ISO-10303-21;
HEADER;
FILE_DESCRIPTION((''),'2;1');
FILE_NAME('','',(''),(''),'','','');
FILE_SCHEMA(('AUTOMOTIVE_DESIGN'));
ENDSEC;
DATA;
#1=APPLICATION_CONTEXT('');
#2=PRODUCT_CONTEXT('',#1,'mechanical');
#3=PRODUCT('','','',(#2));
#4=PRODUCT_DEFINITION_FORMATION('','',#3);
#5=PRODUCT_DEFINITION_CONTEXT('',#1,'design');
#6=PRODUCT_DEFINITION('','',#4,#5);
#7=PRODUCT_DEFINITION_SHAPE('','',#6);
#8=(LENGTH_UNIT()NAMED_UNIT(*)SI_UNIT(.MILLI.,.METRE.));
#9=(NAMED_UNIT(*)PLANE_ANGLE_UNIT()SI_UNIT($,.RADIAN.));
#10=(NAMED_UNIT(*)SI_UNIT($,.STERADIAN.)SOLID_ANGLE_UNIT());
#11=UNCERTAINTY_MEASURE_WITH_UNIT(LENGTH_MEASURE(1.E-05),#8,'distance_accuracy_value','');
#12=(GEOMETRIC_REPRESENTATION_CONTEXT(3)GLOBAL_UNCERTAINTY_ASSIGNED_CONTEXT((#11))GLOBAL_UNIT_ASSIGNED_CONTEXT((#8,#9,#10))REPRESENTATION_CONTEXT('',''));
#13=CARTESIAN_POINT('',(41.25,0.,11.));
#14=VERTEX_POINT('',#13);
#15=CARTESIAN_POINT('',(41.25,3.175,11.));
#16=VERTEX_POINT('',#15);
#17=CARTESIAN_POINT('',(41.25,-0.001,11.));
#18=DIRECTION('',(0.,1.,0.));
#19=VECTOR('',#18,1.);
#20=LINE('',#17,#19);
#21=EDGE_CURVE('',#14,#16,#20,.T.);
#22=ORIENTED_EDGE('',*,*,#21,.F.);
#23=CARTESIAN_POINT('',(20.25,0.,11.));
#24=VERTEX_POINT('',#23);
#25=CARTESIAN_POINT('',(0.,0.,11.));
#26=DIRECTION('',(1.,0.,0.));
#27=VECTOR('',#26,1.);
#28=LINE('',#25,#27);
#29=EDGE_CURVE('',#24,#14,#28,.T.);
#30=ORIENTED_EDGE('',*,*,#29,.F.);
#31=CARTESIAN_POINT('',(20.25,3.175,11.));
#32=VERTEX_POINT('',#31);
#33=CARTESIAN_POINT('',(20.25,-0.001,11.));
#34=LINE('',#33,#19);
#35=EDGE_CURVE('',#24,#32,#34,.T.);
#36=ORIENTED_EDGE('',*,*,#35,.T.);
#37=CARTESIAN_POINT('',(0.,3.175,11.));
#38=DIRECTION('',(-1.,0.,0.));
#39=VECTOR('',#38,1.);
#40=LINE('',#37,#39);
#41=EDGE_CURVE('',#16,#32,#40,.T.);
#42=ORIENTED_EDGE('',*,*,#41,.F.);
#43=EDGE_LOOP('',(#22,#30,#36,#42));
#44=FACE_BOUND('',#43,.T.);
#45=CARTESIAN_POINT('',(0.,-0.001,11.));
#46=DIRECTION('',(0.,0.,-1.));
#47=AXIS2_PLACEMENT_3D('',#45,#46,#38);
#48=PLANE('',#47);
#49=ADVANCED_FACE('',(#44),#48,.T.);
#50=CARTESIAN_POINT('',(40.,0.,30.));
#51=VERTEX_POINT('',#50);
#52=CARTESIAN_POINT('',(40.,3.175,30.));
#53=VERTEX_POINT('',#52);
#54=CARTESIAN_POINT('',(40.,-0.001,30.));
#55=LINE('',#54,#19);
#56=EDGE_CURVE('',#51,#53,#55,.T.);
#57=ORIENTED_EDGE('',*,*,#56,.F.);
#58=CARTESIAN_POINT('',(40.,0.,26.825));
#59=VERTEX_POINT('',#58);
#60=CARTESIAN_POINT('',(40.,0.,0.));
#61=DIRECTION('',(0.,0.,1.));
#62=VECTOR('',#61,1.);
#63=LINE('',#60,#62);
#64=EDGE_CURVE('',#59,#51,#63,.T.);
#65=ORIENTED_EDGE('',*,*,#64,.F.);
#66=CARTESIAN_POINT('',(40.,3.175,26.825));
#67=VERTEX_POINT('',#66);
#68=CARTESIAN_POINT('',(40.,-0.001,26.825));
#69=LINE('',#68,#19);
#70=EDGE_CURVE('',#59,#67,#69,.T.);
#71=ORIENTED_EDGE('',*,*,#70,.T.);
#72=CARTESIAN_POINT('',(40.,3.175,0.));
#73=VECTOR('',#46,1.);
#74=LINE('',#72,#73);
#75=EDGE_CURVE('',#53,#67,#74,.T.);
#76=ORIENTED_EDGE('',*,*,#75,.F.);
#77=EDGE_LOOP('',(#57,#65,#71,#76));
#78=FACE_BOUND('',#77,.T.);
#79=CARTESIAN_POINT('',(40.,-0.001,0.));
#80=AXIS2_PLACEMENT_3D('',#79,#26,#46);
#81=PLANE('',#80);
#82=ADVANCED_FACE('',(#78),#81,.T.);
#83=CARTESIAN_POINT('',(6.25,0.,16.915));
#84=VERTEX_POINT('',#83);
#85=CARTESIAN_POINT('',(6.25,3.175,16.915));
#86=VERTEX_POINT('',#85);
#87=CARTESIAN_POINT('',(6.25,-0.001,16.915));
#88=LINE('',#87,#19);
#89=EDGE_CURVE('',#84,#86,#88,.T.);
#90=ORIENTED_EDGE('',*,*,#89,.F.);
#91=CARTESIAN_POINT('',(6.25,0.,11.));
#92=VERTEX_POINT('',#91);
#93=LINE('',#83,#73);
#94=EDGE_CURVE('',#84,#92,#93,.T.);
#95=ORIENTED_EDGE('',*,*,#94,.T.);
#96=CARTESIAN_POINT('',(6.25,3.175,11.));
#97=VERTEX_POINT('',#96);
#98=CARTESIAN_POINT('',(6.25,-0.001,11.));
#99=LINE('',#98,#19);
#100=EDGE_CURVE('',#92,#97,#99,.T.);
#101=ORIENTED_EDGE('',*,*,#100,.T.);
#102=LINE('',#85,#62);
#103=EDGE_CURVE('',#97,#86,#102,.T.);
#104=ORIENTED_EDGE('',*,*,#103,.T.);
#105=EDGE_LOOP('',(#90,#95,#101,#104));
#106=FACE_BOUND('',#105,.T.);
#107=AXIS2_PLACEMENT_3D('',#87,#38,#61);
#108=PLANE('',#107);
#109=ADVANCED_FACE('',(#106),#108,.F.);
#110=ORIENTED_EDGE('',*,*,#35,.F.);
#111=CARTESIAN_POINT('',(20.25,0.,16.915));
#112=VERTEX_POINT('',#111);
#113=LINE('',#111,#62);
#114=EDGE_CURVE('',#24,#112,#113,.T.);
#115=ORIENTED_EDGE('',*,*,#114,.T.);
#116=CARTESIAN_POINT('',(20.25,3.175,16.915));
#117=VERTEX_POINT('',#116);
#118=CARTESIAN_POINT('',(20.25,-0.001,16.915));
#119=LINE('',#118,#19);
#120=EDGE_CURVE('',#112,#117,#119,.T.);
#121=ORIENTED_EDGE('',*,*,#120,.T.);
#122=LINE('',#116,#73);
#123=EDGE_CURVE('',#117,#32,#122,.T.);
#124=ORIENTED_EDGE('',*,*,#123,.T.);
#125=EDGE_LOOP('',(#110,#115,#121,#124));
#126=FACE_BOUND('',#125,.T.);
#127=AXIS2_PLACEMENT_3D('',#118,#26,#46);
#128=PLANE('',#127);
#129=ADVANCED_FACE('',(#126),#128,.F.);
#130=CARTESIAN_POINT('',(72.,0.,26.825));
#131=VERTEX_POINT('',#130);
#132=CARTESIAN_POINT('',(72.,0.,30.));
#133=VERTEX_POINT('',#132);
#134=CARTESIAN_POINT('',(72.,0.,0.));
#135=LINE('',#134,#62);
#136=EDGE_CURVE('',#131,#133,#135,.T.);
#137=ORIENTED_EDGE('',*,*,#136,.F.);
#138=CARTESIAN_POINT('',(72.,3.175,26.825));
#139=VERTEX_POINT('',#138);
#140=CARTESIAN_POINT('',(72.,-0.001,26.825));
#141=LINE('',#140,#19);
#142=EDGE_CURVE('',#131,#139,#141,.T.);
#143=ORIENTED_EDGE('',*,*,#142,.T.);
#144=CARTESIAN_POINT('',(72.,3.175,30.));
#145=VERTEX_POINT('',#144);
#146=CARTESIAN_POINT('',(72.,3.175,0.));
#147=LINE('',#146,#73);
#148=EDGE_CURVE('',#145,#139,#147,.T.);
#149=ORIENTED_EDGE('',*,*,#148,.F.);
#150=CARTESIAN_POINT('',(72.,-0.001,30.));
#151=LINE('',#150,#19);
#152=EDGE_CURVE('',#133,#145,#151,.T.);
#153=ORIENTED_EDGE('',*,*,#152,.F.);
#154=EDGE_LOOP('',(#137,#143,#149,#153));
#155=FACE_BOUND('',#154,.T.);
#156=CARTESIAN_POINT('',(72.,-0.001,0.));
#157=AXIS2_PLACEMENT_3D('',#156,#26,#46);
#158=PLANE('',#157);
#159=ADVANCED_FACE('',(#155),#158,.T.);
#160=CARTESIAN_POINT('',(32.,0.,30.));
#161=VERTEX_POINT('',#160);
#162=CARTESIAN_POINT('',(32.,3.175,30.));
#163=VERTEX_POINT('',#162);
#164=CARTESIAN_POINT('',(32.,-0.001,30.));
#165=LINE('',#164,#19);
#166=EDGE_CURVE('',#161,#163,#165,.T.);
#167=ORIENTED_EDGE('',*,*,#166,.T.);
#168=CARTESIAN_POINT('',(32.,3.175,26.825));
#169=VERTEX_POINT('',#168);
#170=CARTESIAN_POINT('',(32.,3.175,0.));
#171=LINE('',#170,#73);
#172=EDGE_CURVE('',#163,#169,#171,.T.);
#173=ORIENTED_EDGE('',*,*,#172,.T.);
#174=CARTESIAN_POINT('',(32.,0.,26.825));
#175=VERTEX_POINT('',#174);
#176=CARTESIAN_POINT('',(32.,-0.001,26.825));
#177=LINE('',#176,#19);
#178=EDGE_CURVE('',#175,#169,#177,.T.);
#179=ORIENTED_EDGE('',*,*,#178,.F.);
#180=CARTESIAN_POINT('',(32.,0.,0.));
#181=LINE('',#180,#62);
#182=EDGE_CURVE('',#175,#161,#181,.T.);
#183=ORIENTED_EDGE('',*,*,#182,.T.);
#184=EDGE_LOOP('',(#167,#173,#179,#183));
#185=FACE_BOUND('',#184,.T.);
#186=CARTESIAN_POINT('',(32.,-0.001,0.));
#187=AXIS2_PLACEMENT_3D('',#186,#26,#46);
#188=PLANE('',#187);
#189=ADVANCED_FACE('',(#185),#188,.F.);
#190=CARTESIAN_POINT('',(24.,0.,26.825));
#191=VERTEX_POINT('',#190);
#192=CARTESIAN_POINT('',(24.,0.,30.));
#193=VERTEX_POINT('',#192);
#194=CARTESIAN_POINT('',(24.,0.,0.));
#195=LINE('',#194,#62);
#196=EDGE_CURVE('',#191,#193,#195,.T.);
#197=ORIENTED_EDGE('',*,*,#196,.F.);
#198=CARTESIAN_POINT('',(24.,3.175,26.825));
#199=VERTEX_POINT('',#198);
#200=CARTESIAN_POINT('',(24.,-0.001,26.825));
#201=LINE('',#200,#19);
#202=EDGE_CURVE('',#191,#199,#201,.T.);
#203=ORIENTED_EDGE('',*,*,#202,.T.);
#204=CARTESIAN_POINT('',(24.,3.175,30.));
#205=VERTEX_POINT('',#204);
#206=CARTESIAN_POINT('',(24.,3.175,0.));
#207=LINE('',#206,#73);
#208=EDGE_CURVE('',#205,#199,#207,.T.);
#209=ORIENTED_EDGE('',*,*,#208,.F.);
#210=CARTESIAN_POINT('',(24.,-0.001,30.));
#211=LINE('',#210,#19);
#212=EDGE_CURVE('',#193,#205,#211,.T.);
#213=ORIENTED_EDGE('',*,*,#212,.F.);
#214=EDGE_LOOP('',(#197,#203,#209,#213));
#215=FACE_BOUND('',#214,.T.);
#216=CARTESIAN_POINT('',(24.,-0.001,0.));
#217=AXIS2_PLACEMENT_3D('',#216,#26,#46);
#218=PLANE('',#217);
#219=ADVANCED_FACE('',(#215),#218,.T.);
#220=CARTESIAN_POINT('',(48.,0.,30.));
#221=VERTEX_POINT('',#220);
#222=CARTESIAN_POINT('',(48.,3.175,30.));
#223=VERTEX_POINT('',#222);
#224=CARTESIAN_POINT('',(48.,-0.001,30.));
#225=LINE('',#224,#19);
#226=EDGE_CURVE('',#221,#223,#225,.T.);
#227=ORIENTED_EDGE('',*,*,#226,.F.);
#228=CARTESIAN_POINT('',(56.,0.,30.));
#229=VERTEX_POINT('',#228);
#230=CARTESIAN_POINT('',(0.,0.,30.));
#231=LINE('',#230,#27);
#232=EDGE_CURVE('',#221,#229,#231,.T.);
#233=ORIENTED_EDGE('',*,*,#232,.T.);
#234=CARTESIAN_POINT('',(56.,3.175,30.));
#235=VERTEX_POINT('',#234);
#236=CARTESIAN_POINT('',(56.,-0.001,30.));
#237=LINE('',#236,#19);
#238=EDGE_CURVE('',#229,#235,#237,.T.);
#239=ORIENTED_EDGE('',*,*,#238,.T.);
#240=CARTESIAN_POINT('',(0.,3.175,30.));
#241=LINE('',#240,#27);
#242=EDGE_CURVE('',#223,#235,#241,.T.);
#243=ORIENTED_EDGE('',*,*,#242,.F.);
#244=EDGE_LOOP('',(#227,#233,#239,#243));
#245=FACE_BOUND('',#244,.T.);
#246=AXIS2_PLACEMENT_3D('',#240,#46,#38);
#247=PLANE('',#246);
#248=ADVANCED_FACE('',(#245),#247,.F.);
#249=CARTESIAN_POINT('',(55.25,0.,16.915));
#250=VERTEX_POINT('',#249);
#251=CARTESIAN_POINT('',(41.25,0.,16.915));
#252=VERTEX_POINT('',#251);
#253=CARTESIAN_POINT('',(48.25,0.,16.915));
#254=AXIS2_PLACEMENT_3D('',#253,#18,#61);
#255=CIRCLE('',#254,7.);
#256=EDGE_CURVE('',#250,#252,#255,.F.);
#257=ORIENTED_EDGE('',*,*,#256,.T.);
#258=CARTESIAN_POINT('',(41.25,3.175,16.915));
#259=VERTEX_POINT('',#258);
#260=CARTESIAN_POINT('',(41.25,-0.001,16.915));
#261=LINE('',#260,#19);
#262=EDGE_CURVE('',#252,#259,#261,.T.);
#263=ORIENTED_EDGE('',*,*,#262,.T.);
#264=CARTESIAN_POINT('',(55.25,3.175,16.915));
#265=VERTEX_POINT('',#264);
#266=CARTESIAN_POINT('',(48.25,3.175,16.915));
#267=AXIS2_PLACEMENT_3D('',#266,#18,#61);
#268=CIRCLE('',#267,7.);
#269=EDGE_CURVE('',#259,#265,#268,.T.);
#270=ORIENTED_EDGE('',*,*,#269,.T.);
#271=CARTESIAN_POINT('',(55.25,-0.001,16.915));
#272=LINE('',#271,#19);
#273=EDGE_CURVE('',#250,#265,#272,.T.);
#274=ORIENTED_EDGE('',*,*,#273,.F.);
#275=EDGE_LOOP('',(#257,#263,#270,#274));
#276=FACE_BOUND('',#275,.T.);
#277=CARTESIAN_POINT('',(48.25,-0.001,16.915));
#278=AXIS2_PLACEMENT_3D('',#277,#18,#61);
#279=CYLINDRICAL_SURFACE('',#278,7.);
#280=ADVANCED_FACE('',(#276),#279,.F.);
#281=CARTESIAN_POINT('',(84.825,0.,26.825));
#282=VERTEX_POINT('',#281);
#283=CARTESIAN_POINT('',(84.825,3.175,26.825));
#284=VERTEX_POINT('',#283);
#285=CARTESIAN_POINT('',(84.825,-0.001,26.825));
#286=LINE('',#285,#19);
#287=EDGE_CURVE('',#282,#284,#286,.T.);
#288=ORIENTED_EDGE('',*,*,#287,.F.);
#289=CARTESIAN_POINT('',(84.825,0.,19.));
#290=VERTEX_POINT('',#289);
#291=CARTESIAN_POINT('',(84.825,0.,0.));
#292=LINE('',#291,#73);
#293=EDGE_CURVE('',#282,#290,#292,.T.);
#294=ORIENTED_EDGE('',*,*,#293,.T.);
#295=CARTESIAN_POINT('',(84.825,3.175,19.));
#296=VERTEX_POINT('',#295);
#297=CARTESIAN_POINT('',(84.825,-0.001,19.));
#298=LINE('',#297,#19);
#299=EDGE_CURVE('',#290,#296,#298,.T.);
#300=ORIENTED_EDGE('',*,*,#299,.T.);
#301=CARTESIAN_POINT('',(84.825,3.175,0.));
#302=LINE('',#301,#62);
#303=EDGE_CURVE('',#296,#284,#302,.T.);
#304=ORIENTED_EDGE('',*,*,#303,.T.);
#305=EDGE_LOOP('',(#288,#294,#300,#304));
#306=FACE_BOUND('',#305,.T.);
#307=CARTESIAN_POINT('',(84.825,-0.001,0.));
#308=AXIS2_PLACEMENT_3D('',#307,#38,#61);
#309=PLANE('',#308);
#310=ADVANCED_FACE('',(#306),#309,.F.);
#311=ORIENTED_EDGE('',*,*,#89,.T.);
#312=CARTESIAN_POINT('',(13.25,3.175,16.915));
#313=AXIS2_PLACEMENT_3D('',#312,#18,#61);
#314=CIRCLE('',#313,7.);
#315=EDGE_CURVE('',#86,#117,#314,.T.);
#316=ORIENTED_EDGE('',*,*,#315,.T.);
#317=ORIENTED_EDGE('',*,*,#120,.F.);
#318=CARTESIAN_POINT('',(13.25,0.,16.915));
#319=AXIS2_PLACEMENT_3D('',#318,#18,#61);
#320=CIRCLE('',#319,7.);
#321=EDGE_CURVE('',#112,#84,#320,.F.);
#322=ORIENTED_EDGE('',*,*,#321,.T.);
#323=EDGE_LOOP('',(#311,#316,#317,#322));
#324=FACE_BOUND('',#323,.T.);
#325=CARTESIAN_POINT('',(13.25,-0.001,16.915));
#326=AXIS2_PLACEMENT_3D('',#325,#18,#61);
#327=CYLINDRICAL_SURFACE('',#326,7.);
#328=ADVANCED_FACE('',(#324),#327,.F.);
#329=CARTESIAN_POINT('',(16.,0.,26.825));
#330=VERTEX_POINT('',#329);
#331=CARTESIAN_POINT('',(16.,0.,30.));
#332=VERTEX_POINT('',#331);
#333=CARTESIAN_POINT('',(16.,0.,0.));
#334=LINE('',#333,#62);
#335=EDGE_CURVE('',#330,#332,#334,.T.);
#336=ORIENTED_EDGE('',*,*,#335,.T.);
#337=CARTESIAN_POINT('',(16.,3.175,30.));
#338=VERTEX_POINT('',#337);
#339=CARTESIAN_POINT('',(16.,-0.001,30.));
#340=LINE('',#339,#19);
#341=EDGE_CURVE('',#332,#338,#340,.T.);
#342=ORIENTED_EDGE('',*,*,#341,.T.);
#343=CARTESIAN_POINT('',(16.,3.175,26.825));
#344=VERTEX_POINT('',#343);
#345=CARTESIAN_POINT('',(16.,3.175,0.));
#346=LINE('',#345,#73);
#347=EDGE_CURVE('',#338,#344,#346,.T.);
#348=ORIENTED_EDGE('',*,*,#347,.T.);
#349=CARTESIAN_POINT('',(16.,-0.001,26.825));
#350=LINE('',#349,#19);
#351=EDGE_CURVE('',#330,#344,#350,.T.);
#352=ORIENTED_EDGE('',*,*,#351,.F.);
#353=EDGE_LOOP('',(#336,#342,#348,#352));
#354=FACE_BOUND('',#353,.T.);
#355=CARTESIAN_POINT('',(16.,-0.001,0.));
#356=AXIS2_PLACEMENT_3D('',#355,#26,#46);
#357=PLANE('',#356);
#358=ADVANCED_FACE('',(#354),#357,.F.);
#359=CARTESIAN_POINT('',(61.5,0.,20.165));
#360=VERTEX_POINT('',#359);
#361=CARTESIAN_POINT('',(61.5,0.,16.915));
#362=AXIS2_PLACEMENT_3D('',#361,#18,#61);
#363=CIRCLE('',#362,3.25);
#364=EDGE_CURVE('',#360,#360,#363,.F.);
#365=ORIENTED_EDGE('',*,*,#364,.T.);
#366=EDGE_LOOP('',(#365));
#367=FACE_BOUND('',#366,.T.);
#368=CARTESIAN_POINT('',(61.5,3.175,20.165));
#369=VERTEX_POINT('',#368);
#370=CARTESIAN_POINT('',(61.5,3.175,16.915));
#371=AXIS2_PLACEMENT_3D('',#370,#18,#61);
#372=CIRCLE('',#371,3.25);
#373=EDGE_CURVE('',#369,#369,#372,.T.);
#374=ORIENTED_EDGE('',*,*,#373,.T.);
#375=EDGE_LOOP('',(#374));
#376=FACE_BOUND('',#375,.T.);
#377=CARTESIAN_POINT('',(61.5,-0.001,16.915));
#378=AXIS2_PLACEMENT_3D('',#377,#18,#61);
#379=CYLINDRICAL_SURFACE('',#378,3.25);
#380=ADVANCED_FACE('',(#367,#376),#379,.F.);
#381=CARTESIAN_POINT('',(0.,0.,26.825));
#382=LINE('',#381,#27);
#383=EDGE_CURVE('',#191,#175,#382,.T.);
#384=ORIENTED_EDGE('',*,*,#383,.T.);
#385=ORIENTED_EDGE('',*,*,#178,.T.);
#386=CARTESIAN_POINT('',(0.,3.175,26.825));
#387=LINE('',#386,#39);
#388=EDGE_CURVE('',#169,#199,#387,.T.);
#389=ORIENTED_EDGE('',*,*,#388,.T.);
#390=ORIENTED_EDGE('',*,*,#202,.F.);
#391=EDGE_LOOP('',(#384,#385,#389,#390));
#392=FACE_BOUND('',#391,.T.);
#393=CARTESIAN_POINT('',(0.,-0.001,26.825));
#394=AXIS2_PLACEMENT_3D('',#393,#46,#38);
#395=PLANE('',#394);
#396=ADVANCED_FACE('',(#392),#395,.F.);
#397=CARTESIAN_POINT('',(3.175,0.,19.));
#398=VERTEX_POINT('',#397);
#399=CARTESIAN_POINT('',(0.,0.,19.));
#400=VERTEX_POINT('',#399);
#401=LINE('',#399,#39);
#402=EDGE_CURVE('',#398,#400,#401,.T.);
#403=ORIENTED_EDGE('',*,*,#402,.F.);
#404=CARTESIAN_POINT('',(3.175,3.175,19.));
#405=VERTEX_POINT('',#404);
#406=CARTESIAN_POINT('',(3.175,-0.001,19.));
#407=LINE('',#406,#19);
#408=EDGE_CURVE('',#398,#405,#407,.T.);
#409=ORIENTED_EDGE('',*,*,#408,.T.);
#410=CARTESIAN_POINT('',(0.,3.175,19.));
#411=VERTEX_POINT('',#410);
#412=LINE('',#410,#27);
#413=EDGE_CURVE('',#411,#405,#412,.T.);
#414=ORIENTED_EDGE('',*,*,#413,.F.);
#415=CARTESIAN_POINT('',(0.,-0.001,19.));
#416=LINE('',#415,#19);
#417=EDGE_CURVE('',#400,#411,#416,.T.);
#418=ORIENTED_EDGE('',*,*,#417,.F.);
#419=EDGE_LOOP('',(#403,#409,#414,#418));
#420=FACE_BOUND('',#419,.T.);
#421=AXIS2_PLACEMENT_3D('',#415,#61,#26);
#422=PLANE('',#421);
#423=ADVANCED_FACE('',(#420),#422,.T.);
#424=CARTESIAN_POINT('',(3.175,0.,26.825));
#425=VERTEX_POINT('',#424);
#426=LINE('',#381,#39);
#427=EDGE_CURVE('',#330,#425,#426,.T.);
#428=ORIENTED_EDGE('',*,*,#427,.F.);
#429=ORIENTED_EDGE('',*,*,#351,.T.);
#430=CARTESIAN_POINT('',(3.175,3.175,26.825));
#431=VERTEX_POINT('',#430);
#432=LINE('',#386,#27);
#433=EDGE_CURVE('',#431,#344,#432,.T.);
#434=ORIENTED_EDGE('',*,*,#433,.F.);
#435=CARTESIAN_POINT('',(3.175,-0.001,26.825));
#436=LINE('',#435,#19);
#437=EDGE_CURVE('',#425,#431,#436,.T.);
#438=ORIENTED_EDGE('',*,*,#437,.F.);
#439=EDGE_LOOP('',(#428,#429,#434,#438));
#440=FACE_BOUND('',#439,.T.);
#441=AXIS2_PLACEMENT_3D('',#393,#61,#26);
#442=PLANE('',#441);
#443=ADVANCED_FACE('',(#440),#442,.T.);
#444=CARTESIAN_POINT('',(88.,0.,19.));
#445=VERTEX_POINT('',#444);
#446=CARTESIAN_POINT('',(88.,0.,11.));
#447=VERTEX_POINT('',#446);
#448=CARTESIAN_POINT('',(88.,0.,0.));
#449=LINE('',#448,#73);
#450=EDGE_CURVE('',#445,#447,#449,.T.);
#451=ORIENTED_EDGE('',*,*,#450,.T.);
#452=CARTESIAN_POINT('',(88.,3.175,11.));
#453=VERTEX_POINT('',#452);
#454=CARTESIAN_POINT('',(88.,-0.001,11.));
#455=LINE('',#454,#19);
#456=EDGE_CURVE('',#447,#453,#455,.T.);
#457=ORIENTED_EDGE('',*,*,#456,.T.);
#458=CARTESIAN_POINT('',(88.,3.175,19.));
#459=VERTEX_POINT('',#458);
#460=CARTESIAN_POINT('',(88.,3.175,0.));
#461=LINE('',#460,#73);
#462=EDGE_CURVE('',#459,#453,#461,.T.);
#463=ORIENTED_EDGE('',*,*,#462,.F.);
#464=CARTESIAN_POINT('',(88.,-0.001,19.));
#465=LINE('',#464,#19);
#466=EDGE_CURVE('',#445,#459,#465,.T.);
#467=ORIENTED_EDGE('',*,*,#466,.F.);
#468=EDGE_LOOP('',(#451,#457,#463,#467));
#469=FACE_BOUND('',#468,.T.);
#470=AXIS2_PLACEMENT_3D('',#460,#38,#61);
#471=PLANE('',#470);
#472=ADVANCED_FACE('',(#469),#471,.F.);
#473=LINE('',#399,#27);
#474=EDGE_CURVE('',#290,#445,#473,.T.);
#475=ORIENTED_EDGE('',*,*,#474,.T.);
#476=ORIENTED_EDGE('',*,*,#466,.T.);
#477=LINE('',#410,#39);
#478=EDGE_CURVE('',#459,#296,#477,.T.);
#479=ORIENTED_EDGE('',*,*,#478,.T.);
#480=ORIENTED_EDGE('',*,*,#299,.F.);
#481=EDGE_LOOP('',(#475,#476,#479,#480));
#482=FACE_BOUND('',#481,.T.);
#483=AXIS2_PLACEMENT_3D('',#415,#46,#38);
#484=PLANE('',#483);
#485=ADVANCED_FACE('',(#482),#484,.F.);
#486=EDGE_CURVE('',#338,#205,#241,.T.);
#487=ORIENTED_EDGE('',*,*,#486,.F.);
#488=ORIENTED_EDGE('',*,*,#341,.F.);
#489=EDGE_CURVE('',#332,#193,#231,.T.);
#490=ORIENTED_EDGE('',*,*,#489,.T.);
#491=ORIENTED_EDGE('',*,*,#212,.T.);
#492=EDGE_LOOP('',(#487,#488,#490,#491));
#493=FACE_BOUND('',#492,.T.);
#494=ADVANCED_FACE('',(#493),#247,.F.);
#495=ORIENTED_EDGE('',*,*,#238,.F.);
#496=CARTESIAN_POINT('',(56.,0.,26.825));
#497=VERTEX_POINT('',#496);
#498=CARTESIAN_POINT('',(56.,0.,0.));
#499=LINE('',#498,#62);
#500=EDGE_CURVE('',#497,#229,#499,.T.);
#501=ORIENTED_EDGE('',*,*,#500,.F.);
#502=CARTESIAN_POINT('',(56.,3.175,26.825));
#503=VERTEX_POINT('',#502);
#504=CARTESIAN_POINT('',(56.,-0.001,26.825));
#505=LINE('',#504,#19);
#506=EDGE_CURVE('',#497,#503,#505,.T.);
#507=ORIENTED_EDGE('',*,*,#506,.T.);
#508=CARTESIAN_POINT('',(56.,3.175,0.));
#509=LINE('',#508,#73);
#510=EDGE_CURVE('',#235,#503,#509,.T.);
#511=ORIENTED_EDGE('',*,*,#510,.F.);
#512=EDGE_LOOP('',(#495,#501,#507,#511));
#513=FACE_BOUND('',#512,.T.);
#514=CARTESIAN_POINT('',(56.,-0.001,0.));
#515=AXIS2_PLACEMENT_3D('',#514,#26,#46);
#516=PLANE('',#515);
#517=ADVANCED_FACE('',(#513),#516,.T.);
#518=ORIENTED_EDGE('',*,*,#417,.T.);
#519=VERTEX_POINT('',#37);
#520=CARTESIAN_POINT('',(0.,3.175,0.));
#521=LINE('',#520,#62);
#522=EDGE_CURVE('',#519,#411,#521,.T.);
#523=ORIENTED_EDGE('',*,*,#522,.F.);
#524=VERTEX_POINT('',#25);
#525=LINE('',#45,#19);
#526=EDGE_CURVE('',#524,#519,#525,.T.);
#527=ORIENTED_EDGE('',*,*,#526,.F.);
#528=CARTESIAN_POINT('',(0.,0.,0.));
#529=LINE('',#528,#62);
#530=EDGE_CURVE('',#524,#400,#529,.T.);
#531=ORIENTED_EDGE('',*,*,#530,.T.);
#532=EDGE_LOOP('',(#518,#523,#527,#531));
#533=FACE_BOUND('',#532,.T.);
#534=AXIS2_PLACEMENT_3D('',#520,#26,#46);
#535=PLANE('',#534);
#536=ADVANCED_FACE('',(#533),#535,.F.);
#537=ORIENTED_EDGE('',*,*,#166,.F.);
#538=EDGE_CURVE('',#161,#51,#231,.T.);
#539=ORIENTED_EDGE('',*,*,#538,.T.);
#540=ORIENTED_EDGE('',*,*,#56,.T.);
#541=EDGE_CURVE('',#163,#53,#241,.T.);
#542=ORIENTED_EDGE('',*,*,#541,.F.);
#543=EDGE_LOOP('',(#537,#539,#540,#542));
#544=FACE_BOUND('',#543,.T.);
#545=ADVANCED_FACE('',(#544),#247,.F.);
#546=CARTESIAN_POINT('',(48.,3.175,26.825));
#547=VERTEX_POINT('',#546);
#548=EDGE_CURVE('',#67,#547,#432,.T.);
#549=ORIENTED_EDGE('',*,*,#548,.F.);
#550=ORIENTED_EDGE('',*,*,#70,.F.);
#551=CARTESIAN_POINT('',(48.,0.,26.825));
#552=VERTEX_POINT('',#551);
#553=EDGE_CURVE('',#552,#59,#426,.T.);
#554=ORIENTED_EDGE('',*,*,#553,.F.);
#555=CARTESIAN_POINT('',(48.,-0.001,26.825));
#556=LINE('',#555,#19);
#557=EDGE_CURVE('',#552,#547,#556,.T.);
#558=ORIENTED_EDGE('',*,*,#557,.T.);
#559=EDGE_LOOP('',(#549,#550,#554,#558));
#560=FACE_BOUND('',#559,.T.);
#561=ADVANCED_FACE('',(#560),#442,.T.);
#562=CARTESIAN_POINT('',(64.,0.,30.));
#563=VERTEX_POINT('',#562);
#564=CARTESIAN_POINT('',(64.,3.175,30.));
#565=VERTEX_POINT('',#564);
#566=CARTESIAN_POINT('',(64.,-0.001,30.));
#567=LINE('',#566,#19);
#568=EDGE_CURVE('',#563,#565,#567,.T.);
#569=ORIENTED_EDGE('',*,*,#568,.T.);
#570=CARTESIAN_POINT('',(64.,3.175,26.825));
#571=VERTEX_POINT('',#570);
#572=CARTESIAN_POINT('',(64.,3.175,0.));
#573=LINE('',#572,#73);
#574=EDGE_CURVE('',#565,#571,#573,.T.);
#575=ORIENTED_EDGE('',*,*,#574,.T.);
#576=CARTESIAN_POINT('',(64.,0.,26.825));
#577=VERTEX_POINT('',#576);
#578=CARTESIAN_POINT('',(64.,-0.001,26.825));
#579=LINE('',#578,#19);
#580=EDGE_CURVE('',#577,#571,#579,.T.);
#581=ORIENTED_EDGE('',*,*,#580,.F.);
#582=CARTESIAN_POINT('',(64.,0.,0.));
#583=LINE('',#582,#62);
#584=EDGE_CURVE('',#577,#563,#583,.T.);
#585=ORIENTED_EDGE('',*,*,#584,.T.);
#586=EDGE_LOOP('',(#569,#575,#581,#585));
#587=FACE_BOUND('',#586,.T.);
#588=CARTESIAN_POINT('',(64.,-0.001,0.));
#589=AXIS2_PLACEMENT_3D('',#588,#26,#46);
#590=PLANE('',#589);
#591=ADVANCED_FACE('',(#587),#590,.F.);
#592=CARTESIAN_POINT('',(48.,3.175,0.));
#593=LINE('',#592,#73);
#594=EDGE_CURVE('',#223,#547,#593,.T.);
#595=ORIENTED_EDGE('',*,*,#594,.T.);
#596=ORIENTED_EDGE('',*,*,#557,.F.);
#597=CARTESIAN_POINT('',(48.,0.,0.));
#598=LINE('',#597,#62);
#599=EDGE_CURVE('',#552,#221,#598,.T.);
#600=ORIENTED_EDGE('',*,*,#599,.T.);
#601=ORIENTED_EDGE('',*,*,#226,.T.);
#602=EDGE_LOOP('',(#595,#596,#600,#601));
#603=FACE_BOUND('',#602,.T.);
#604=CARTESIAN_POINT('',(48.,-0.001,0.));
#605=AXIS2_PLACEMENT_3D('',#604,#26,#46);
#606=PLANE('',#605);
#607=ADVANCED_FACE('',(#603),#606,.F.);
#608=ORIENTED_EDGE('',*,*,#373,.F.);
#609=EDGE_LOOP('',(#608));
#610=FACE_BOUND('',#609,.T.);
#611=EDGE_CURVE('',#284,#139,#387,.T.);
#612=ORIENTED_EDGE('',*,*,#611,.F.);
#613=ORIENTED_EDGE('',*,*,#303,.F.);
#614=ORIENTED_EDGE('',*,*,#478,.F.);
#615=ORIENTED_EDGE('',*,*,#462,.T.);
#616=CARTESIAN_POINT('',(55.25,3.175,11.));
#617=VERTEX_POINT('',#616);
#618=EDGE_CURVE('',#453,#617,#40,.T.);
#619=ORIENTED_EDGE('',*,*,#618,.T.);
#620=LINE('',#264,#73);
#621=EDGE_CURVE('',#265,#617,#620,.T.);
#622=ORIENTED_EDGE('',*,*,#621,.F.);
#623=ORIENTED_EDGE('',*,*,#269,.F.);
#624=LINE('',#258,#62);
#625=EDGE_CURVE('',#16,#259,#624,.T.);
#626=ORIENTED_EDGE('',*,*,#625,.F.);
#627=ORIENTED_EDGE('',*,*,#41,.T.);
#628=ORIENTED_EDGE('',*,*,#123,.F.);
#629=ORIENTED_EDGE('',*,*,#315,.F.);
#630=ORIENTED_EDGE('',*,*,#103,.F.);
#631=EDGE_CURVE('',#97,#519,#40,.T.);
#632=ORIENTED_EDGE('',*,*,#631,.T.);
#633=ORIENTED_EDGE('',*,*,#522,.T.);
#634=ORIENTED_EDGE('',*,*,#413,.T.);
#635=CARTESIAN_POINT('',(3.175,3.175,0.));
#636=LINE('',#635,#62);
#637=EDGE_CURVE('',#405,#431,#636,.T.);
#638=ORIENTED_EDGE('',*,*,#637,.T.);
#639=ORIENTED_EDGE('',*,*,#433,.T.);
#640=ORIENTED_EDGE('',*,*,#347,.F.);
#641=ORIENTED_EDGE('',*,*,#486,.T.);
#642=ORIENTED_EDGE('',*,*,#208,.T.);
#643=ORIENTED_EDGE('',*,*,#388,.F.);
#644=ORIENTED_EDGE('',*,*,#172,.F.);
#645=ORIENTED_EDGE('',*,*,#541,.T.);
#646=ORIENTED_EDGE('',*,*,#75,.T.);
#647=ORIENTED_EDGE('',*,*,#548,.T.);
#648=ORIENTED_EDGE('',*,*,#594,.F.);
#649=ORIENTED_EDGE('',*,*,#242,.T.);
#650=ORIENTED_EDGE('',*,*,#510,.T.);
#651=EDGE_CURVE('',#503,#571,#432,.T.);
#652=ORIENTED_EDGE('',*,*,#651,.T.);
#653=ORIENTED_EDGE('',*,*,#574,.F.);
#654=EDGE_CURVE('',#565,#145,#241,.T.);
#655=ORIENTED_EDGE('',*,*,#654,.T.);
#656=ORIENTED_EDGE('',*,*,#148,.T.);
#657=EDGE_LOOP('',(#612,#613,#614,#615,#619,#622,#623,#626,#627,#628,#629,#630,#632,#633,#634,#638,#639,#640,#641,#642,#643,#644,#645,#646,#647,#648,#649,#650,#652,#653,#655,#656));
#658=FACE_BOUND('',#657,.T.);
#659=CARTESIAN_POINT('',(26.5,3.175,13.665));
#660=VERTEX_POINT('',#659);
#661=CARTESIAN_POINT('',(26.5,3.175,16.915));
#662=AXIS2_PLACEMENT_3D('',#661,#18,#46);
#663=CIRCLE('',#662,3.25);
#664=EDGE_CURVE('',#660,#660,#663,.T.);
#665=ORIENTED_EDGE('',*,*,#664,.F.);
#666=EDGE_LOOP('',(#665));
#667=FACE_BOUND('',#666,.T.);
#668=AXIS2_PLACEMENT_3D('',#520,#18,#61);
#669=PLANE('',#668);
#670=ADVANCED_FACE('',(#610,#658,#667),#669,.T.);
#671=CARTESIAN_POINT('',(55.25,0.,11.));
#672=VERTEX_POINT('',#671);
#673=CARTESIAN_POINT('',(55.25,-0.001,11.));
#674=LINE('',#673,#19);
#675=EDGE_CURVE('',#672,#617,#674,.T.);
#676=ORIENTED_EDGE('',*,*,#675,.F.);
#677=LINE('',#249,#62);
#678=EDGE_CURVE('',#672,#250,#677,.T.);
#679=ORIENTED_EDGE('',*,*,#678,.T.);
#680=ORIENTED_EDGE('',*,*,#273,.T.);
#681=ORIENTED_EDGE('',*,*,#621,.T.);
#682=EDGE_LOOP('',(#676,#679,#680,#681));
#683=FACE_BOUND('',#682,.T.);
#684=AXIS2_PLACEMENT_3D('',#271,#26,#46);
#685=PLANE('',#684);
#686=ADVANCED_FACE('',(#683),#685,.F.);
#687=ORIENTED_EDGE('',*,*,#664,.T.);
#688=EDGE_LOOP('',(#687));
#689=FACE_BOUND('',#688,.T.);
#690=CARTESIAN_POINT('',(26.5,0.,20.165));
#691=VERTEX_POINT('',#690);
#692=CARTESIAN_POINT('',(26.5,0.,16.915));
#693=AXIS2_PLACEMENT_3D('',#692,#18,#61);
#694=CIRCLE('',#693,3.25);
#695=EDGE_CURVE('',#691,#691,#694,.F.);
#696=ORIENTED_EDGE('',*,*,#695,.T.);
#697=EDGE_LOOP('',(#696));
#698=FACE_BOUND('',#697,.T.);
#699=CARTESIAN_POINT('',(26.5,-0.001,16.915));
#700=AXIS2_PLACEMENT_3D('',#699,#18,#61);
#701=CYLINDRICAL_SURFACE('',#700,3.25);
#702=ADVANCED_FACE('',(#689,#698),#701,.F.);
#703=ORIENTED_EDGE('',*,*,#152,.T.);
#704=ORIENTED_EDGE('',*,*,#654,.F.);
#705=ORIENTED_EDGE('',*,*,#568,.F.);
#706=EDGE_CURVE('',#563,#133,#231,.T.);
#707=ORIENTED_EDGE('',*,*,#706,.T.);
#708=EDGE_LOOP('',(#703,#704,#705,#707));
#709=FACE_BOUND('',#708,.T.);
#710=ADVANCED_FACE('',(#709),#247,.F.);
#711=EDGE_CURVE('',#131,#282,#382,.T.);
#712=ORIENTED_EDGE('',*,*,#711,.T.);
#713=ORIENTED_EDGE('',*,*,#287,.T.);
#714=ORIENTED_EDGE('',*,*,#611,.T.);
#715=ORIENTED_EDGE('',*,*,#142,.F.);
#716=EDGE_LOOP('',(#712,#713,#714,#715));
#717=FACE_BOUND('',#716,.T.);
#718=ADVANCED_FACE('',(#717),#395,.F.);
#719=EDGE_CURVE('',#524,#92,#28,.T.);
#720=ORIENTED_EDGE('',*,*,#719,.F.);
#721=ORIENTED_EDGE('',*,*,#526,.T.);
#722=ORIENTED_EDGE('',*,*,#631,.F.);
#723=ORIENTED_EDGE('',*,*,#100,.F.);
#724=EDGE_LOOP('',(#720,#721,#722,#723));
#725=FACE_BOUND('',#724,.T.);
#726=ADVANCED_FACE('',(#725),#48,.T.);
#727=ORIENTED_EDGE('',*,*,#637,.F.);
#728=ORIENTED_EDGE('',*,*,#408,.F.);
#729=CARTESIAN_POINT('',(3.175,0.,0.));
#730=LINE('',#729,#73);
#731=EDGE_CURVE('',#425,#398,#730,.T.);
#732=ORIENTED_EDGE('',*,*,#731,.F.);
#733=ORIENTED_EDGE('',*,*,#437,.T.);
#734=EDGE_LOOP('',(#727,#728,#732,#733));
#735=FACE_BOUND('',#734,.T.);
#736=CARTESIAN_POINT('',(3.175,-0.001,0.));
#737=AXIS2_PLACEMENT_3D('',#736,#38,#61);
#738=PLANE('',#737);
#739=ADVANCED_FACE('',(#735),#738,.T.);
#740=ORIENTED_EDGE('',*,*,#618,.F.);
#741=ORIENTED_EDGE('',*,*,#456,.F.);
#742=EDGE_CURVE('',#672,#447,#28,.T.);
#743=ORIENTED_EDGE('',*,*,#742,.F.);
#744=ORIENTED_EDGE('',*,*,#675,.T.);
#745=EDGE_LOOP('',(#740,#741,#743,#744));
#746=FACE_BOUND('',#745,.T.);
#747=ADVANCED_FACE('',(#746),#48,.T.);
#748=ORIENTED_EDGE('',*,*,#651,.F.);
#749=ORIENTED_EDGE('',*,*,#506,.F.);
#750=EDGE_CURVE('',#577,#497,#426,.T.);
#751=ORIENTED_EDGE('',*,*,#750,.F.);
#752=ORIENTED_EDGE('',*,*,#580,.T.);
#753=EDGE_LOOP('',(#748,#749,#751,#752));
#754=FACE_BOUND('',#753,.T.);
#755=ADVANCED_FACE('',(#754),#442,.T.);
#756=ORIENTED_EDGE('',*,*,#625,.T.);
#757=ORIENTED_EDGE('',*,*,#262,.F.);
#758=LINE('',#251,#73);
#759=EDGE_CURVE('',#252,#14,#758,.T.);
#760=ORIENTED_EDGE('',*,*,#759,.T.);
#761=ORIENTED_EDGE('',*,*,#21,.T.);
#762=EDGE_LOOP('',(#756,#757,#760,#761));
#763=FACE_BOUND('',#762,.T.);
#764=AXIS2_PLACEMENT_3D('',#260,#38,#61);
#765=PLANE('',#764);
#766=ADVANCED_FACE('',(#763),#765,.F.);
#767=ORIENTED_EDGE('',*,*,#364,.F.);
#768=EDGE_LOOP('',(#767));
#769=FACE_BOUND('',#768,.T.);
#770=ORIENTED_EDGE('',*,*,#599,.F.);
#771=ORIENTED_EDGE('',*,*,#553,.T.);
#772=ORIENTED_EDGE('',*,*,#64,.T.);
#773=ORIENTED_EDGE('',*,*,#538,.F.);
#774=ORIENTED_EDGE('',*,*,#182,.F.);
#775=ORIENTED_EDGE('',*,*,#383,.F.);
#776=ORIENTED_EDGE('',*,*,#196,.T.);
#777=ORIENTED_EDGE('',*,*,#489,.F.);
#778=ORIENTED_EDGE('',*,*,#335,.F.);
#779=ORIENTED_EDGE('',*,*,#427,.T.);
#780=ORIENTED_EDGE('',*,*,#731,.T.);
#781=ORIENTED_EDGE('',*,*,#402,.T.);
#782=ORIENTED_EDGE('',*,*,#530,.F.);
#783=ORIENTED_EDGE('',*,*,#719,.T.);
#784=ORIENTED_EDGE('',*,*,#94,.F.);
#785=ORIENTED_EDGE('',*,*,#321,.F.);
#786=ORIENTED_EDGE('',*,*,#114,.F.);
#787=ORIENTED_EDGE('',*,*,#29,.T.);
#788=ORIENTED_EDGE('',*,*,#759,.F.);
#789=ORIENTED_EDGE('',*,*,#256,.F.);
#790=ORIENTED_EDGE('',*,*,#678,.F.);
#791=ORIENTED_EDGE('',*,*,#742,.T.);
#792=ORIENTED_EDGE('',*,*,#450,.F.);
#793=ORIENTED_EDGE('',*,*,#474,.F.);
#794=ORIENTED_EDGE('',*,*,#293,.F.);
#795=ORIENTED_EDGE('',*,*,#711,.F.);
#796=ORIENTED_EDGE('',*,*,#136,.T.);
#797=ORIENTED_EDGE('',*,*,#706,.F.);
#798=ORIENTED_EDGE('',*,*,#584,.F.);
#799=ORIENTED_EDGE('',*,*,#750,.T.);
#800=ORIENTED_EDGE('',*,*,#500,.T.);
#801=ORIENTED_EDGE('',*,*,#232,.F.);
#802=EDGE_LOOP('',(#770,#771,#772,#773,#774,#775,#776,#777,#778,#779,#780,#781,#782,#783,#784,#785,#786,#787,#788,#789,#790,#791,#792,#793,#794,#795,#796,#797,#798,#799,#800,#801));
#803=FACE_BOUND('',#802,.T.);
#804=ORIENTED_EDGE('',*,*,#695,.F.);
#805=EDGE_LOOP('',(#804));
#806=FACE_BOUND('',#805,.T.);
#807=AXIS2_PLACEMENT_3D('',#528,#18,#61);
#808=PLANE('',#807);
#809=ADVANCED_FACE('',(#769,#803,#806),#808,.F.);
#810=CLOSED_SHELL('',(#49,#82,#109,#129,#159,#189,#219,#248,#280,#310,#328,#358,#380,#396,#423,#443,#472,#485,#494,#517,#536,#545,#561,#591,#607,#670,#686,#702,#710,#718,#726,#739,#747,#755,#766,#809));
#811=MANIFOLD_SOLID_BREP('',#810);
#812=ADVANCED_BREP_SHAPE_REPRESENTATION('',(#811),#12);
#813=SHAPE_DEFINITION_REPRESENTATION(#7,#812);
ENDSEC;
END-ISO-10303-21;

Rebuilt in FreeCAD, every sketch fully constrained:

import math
import FreeCAD as App
import Part
import Sketcher
Q = App.Units.Quantity

doc = App.newDocument("Part")
body = doc.addObject("PartDesign::Body", "Body")

# Sketch on XZ plane
sketch1 = body.newObject("Sketcher::SketchObject", "Sketch")
sketch1.AttachmentSupport = (doc.getObject("XZ_Plane"), [""])
sketch1.MapMode = "FlatFace"
sketch1.addGeometry([
    Part.LineSegment(App.Vector(0, 0, 0), App.Vector(0, 30, 0)),
    Part.LineSegment(App.Vector(0, 30, 0), App.Vector(88, 30, 0)),
    Part.LineSegment(App.Vector(88, 30, 0), App.Vector(88, 0, 0)),
    Part.LineSegment(App.Vector(88, 0, 0), App.Vector(0, 0, 0)),
], False)
sketch1.addConstraint([
    Sketcher.Constraint("Coincident", 0, 2, 1, 1),
    Sketcher.Constraint("Coincident", 1, 2, 2, 1),
    Sketcher.Constraint("Coincident", 2, 2, 3, 1),
    Sketcher.Constraint("Coincident", 3, 2, 0, 1),
    Sketcher.Constraint("Vertical", 0),
    Sketcher.Constraint("Horizontal", 1),
    Sketcher.Constraint("Vertical", 2),
    Sketcher.Constraint("Horizontal", 3),
    Sketcher.Constraint("Coincident", 3, 2, -1, 1),
    Sketcher.Constraint("DistanceX", 1, 1, 1, 2, Q("88 mm")),
    Sketcher.Constraint("DistanceY", 0, 1, 0, 2, Q("30 mm")),
])
pad1 = body.newObject("PartDesign::Pad", "Pad")
pad1.Profile = sketch1
pad1.Length = 3.175
pad1.Reversed = True

# Sketch on XZ plane
sketch2 = body.newObject("Sketcher::SketchObject", "Sketch001")
sketch2.AttachmentSupport = (doc.getObject("XZ_Plane"), [""])
sketch2.MapMode = "FlatFace"
sketch2.AttachmentOffset = App.Placement(App.Vector(0, 0, -3.175), App.Rotation())
sketch2.addGeometry([
    Part.LineSegment(App.Vector(0, 19, 0), App.Vector(0, 26.8, 0)),
    Part.LineSegment(App.Vector(0, 26.8, 0), App.Vector(3.2, 26.8, 0)),
    Part.LineSegment(App.Vector(3.2, 26.8, 0), App.Vector(3.2, 19, 0)),
    Part.LineSegment(App.Vector(3.2, 19, 0), App.Vector(0, 19, 0)),
], False)
sketch2.addConstraint([
    Sketcher.Constraint("Coincident", 0, 2, 1, 1),
    Sketcher.Constraint("Coincident", 1, 2, 2, 1),
    Sketcher.Constraint("Coincident", 2, 2, 3, 1),
    Sketcher.Constraint("Coincident", 3, 2, 0, 1),
    Sketcher.Constraint("Vertical", 0),
    Sketcher.Constraint("Horizontal", 1),
    Sketcher.Constraint("Vertical", 2),
    Sketcher.Constraint("Horizontal", 3),
    Sketcher.Constraint("PointOnObject", 0, 2, -2),
    Sketcher.Constraint("DistanceY", -1, 1, 2, 2, Q("19 mm")),
    Sketcher.Constraint("DistanceX", 1, 1, 1, 2, Q("3.175 mm")),
    Sketcher.Constraint("DistanceY", 0, 1, 0, 2, Q("7.825 mm")),
])
pocket1 = body.newObject("PartDesign::Pocket", "Pocket")
pocket1.Profile = sketch2
pocket1.Type = "UpToFirst"
pocket1.Reversed = True

# Sketch on XZ plane
sketch3 = body.newObject("Sketcher::SketchObject", "Sketch002")
sketch3.AttachmentSupport = (doc.getObject("XZ_Plane"), [""])
sketch3.MapMode = "FlatFace"
sketch3.AttachmentOffset = App.Placement(App.Vector(0, 0, -3.175), App.Rotation())
sketch3.addGeometry([
    Part.LineSegment(App.Vector(0, 30, 0), App.Vector(16, 30, 0)),
    Part.LineSegment(App.Vector(16, 30, 0), App.Vector(16, 26.8, 0)),
    Part.LineSegment(App.Vector(16, 26.8, 0), App.Vector(0, 26.8, 0)),
    Part.LineSegment(App.Vector(0, 26.8, 0), App.Vector(0, 30, 0)),
], False)
sketch3.addConstraint([
    Sketcher.Constraint("Coincident", 0, 2, 1, 1),
    Sketcher.Constraint("Coincident", 1, 2, 2, 1),
    Sketcher.Constraint("Coincident", 2, 2, 3, 1),
    Sketcher.Constraint("Coincident", 3, 2, 0, 1),
    Sketcher.Constraint("Horizontal", 0),
    Sketcher.Constraint("Vertical", 1),
    Sketcher.Constraint("Horizontal", 2),
    Sketcher.Constraint("Vertical", 3),
    Sketcher.Constraint("PointOnObject", 2, 2, -2),
    Sketcher.Constraint("DistanceX", 0, 1, 0, 2, Q("16 mm")),
    Sketcher.Constraint("DistanceY", -1, 1, 0, 2, Q("30 mm")),
    Sketcher.Constraint("DistanceY", 1, 2, 1, 1, Q("3.175 mm")),
])
pocket2 = body.newObject("PartDesign::Pocket", "Pocket001")
pocket2.Profile = sketch3
pocket2.Type = "UpToFirst"
pocket2.Reversed = True

# Sketch on XZ plane
sketch4 = body.newObject("Sketcher::SketchObject", "Sketch003")
sketch4.AttachmentSupport = (doc.getObject("XZ_Plane"), [""])
sketch4.MapMode = "FlatFace"
sketch4.AttachmentOffset = App.Placement(App.Vector(0, 0, -3.175), App.Rotation())
sketch4.addGeometry([
    Part.LineSegment(App.Vector(24, 26.8, 0), App.Vector(24, 30, 0)),
    Part.LineSegment(App.Vector(24, 30, 0), App.Vector(32, 30, 0)),
    Part.LineSegment(App.Vector(32, 30, 0), App.Vector(32, 26.8, 0)),
    Part.LineSegment(App.Vector(32, 26.8, 0), App.Vector(24, 26.8, 0)),
], False)
sketch4.addConstraint([
    Sketcher.Constraint("Coincident", 0, 2, 1, 1),
    Sketcher.Constraint("Coincident", 1, 2, 2, 1),
    Sketcher.Constraint("Coincident", 2, 2, 3, 1),
    Sketcher.Constraint("Coincident", 3, 2, 0, 1),
    Sketcher.Constraint("Vertical", 0),
    Sketcher.Constraint("Horizontal", 1),
    Sketcher.Constraint("Vertical", 2),
    Sketcher.Constraint("Horizontal", 3),
    Sketcher.Constraint("DistanceX", 1, 1, 1, 2, Q("8 mm")),
    Sketcher.Constraint("DistanceX", -1, 1, 0, 2, Q("24 mm")),
    Sketcher.Constraint("DistanceY", -1, 1, 0, 2, Q("30 mm")),
    Sketcher.Constraint("DistanceY", 0, 1, 0, 2, Q("3.175 mm")),
])
pocket3 = body.newObject("PartDesign::Pocket", "Pocket002")
pocket3.Profile = sketch4
pocket3.Type = "UpToFirst"
pocket3.Reversed = True

# Sketch on XZ plane
sketch5 = body.newObject("Sketcher::SketchObject", "Sketch004")
sketch5.AttachmentSupport = (doc.getObject("XZ_Plane"), [""])
sketch5.MapMode = "FlatFace"
sketch5.AttachmentOffset = App.Placement(App.Vector(0, 0, -3.175), App.Rotation())
sketch5.addGeometry([
    Part.LineSegment(App.Vector(40, 26.8, 0), App.Vector(40, 30, 0)),
    Part.LineSegment(App.Vector(40, 30, 0), App.Vector(48, 30, 0)),
    Part.LineSegment(App.Vector(48, 30, 0), App.Vector(48, 26.8, 0)),
    Part.LineSegment(App.Vector(48, 26.8, 0), App.Vector(40, 26.8, 0)),
], False)
sketch5.addConstraint([
    Sketcher.Constraint("Coincident", 0, 2, 1, 1),
    Sketcher.Constraint("Coincident", 1, 2, 2, 1),
    Sketcher.Constraint("Coincident", 2, 2, 3, 1),
    Sketcher.Constraint("Coincident", 3, 2, 0, 1),
    Sketcher.Constraint("Vertical", 0),
    Sketcher.Constraint("Horizontal", 1),
    Sketcher.Constraint("Vertical", 2),
    Sketcher.Constraint("Horizontal", 3),
    Sketcher.Constraint("DistanceX", 1, 1, 1, 2, Q("8 mm")),
    Sketcher.Constraint("DistanceX", -1, 1, 0, 2, Q("40 mm")),
    Sketcher.Constraint("DistanceY", -1, 1, 0, 2, Q("30 mm")),
    Sketcher.Constraint("DistanceY", 0, 1, 0, 2, Q("3.175 mm")),
])
pocket4 = body.newObject("PartDesign::Pocket", "Pocket003")
pocket4.Profile = sketch5
pocket4.Type = "UpToFirst"
pocket4.Reversed = True

# Sketch on XZ plane
sketch6 = body.newObject("Sketcher::SketchObject", "Sketch005")
sketch6.AttachmentSupport = (doc.getObject("XZ_Plane"), [""])
sketch6.MapMode = "FlatFace"
sketch6.AttachmentOffset = App.Placement(App.Vector(0, 0, -3.175), App.Rotation())
sketch6.addGeometry([
    Part.LineSegment(App.Vector(56, 26.8, 0), App.Vector(56, 30, 0)),
    Part.LineSegment(App.Vector(56, 30, 0), App.Vector(64, 30, 0)),
    Part.LineSegment(App.Vector(64, 30, 0), App.Vector(64, 26.8, 0)),
    Part.LineSegment(App.Vector(64, 26.8, 0), App.Vector(56, 26.8, 0)),
], False)
sketch6.addConstraint([
    Sketcher.Constraint("Coincident", 0, 2, 1, 1),
    Sketcher.Constraint("Coincident", 1, 2, 2, 1),
    Sketcher.Constraint("Coincident", 2, 2, 3, 1),
    Sketcher.Constraint("Coincident", 3, 2, 0, 1),
    Sketcher.Constraint("Vertical", 0),
    Sketcher.Constraint("Horizontal", 1),
    Sketcher.Constraint("Vertical", 2),
    Sketcher.Constraint("Horizontal", 3),
    Sketcher.Constraint("DistanceX", 1, 1, 1, 2, Q("8 mm")),
    Sketcher.Constraint("DistanceX", -1, 1, 0, 2, Q("56 mm")),
    Sketcher.Constraint("DistanceY", -1, 1, 0, 2, Q("30 mm")),
    Sketcher.Constraint("DistanceY", 0, 1, 0, 2, Q("3.175 mm")),
])
pocket5 = body.newObject("PartDesign::Pocket", "Pocket004")
pocket5.Profile = sketch6
pocket5.Type = "UpToFirst"
pocket5.Reversed = True

# Sketch on XZ plane
sketch7 = body.newObject("Sketcher::SketchObject", "Sketch006")
sketch7.AttachmentSupport = (doc.getObject("XZ_Plane"), [""])
sketch7.MapMode = "FlatFace"
sketch7.AttachmentOffset = App.Placement(App.Vector(0, 0, -3.175), App.Rotation())
sketch7.addGeometry([
    Part.LineSegment(App.Vector(84.8, 19, 0), App.Vector(84.8, 26.8, 0)),
    Part.LineSegment(App.Vector(84.8, 26.8, 0), App.Vector(88, 26.8, 0)),
    Part.LineSegment(App.Vector(88, 26.8, 0), App.Vector(88, 19, 0)),
    Part.LineSegment(App.Vector(88, 19, 0), App.Vector(84.8, 19, 0)),
], False)
sketch7.addConstraint([
    Sketcher.Constraint("Coincident", 0, 2, 1, 1),
    Sketcher.Constraint("Coincident", 1, 2, 2, 1),
    Sketcher.Constraint("Coincident", 2, 2, 3, 1),
    Sketcher.Constraint("Coincident", 3, 2, 0, 1),
    Sketcher.Constraint("Vertical", 0),
    Sketcher.Constraint("Horizontal", 1),
    Sketcher.Constraint("Vertical", 2),
    Sketcher.Constraint("Horizontal", 3),
    Sketcher.Constraint("DistanceX", -1, 1, 1, 2, Q("88 mm")),
    Sketcher.Constraint("DistanceY", -1, 1, 2, 2, Q("19 mm")),
    Sketcher.Constraint("DistanceX", 1, 1, 1, 2, Q("3.175 mm")),
    Sketcher.Constraint("DistanceY", 0, 1, 0, 2, Q("7.825 mm")),
])
pocket6 = body.newObject("PartDesign::Pocket", "Pocket005")
pocket6.Profile = sketch7
pocket6.Type = "UpToFirst"
pocket6.Reversed = True

# Sketch on XZ plane
sketch8 = body.newObject("Sketcher::SketchObject", "Sketch007")
sketch8.AttachmentSupport = (doc.getObject("XZ_Plane"), [""])
sketch8.MapMode = "FlatFace"
sketch8.AttachmentOffset = App.Placement(App.Vector(0, 0, -3.175), App.Rotation())
sketch8.addGeometry([
    Part.LineSegment(App.Vector(84.8, 0, 0), App.Vector(84.8, 11, 0)),
    Part.LineSegment(App.Vector(84.8, 11, 0), App.Vector(88, 11, 0)),
    Part.LineSegment(App.Vector(88, 11, 0), App.Vector(88, 0, 0)),
    Part.LineSegment(App.Vector(88, 0, 0), App.Vector(84.8, 0, 0)),
], False)
sketch8.addConstraint([
    Sketcher.Constraint("Coincident", 0, 2, 1, 1),
    Sketcher.Constraint("Coincident", 1, 2, 2, 1),
    Sketcher.Constraint("Coincident", 2, 2, 3, 1),
    Sketcher.Constraint("Coincident", 3, 2, 0, 1),
    Sketcher.Constraint("Vertical", 0),
    Sketcher.Constraint("Horizontal", 1),
    Sketcher.Constraint("Vertical", 2),
    Sketcher.Constraint("Horizontal", 3),
    Sketcher.Constraint("PointOnObject", 2, 2, -1),
    Sketcher.Constraint("DistanceY", 0, 1, 0, 2, Q("11 mm")),
    Sketcher.Constraint("DistanceX", -1, 1, 1, 2, Q("88 mm")),
    Sketcher.Constraint("DistanceX", 1, 1, 1, 2, Q("3.175 mm")),
])
pocket7 = body.newObject("PartDesign::Pocket", "Pocket006")
pocket7.Profile = sketch8
pocket7.Type = "UpToFirst"
pocket7.Reversed = True

# Sketch on XZ plane
sketch9 = body.newObject("Sketcher::SketchObject", "Sketch008")
sketch9.AttachmentSupport = (doc.getObject("XZ_Plane"), [""])
sketch9.MapMode = "FlatFace"
sketch9.AttachmentOffset = App.Placement(App.Vector(0, 0, -3.175), App.Rotation())
sketch9.addGeometry([
    Part.LineSegment(App.Vector(72, 26.8, 0), App.Vector(72, 30, 0)),
    Part.LineSegment(App.Vector(72, 30, 0), App.Vector(88, 30, 0)),
    Part.LineSegment(App.Vector(88, 30, 0), App.Vector(88, 26.8, 0)),
    Part.LineSegment(App.Vector(88, 26.8, 0), App.Vector(72, 26.8, 0)),
], False)
sketch9.addConstraint([
    Sketcher.Constraint("Coincident", 0, 2, 1, 1),
    Sketcher.Constraint("Coincident", 1, 2, 2, 1),
    Sketcher.Constraint("Coincident", 2, 2, 3, 1),
    Sketcher.Constraint("Coincident", 3, 2, 0, 1),
    Sketcher.Constraint("Vertical", 0),
    Sketcher.Constraint("Horizontal", 1),
    Sketcher.Constraint("Vertical", 2),
    Sketcher.Constraint("Horizontal", 3),
    Sketcher.Constraint("DistanceX", 1, 1, 1, 2, Q("16 mm")),
    Sketcher.Constraint("DistanceX", -1, 1, 0, 2, Q("72 mm")),
    Sketcher.Constraint("DistanceY", -1, 1, 0, 2, Q("30 mm")),
    Sketcher.Constraint("DistanceY", 0, 1, 0, 2, Q("3.175 mm")),
])
pocket8 = body.newObject("PartDesign::Pocket", "Pocket007")
pocket8.Profile = sketch9
pocket8.Type = "UpToFirst"
pocket8.Reversed = True

# Sketch on XZ plane
sketch10 = body.newObject("Sketcher::SketchObject", "Sketch009")
sketch10.AttachmentSupport = (doc.getObject("XZ_Plane"), [""])
sketch10.MapMode = "FlatFace"
sketch10.AttachmentOffset = App.Placement(App.Vector(0, 0, -3.175), App.Rotation())
sketch10.addGeometry([
    Part.LineSegment(App.Vector(0, 0, 0), App.Vector(0, 11, 0)),
    Part.LineSegment(App.Vector(0, 11, 0), App.Vector(3.2, 11, 0)),
    Part.LineSegment(App.Vector(3.2, 11, 0), App.Vector(3.2, 0, 0)),
    Part.LineSegment(App.Vector(3.2, 0, 0), App.Vector(0, 0, 0)),
], False)
sketch10.addConstraint([
    Sketcher.Constraint("Coincident", 0, 2, 1, 1),
    Sketcher.Constraint("Coincident", 1, 2, 2, 1),
    Sketcher.Constraint("Coincident", 2, 2, 3, 1),
    Sketcher.Constraint("Coincident", 3, 2, 0, 1),
    Sketcher.Constraint("Vertical", 0),
    Sketcher.Constraint("Horizontal", 1),
    Sketcher.Constraint("Vertical", 2),
    Sketcher.Constraint("Horizontal", 3),
    Sketcher.Constraint("Coincident", 3, 2, -1, 1),
    Sketcher.Constraint("DistanceY", 0, 1, 0, 2, Q("11 mm")),
    Sketcher.Constraint("DistanceX", 1, 1, 1, 2, Q("3.175 mm")),
])
pocket9 = body.newObject("PartDesign::Pocket", "Pocket008")
pocket9.Profile = sketch10
pocket9.Type = "UpToFirst"
pocket9.Reversed = True

# Sketch on XZ plane
sketch11 = body.newObject("Sketcher::SketchObject", "Sketch010")
sketch11.AttachmentSupport = (doc.getObject("XZ_Plane"), [""])
sketch11.MapMode = "FlatFace"
sketch11.AttachmentOffset = App.Placement(App.Vector(0, 0, -3.175), App.Rotation())
sketch11.addGeometry(Part.Circle(App.Vector(61.5, 16.9, 0), App.Vector(0, 0, 1), 3.2), False)
sketch11.addConstraint([
    Sketcher.Constraint("Diameter", 0, Q("6.5 mm")),
    Sketcher.Constraint("DistanceX", -1, 1, 0, 3, Q("61.5 mm")),
    Sketcher.Constraint("DistanceY", -1, 1, 0, 3, Q("16.915 mm")),
])
pocket10 = body.newObject("PartDesign::Pocket", "Pocket009")
pocket10.Profile = sketch11
pocket10.Type = "UpToFirst"
pocket10.Reversed = True

# Sketch on XZ plane
sketch12 = body.newObject("Sketcher::SketchObject", "Sketch011")
sketch12.AttachmentSupport = (doc.getObject("XZ_Plane"), [""])
sketch12.MapMode = "FlatFace"
sketch12.AttachmentOffset = App.Placement(App.Vector(0, 0, -3.175), App.Rotation())
sketch12.addGeometry(Part.Circle(App.Vector(26.5, 16.9, 0), App.Vector(0, 0, 1), 3.2), False)
sketch12.addConstraint([
    Sketcher.Constraint("Diameter", 0, Q("6.5 mm")),
    Sketcher.Constraint("DistanceX", -1, 1, 0, 3, Q("26.5 mm")),
    Sketcher.Constraint("DistanceY", -1, 1, 0, 3, Q("16.915 mm")),
])
pocket11 = body.newObject("PartDesign::Pocket", "Pocket010")
pocket11.Profile = sketch12
pocket11.Type = "UpToFirst"
pocket11.Reversed = True

# Sketch on XZ plane
sketch13 = body.newObject("Sketcher::SketchObject", "Sketch012")
sketch13.AttachmentSupport = (doc.getObject("XZ_Plane"), [""])
sketch13.MapMode = "FlatFace"
sketch13.AttachmentOffset = App.Placement(App.Vector(0, 0, -3.175), App.Rotation())
sketch13.addGeometry([
    Part.LineSegment(App.Vector(3, 0, 0), App.Vector(3, 11, 0)),
    Part.LineSegment(App.Vector(3, 11, 0), App.Vector(85, 11, 0)),
    Part.LineSegment(App.Vector(85, 11, 0), App.Vector(85, 0, 0)),
    Part.LineSegment(App.Vector(85, 0, 0), App.Vector(3, 0, 0)),
], False)
sketch13.addConstraint([
    Sketcher.Constraint("Coincident", 0, 2, 1, 1),
    Sketcher.Constraint("Coincident", 1, 2, 2, 1),
    Sketcher.Constraint("Coincident", 2, 2, 3, 1),
    Sketcher.Constraint("Coincident", 3, 2, 0, 1),
    Sketcher.Constraint("Vertical", 0),
    Sketcher.Constraint("Horizontal", 1),
    Sketcher.Constraint("Vertical", 2),
    Sketcher.Constraint("Horizontal", 3),
    Sketcher.Constraint("PointOnObject", 2, 2, -1),
    Sketcher.Constraint("DistanceY", 0, 1, 0, 2, Q("11 mm")),
    Sketcher.Constraint("DistanceX", 1, 1, 1, 2, Q("81.65 mm")),
    Sketcher.Constraint("DistanceX", -1, 1, 0, 2, Q("3.175 mm")),
])
pocket12 = body.newObject("PartDesign::Pocket", "Pocket011")
pocket12.Profile = sketch13
pocket12.Type = "UpToFirst"
pocket12.Reversed = True

# Sketch on XZ plane
sketch14 = body.newObject("Sketcher::SketchObject", "Sketch013")
sketch14.AttachmentSupport = (doc.getObject("XZ_Plane"), [""])
sketch14.MapMode = "FlatFace"
sketch14.AttachmentOffset = App.Placement(App.Vector(0, 0, -3.175), App.Rotation())
sketch14.addGeometry([
    Part.LineSegment(App.Vector(6, 11, 0), App.Vector(6, 17, 0)),
    Part.ArcOfCircle(Part.Circle(App.Vector(13, 17, 0), App.Vector(0, 0, 1), 7), math.radians(0), math.radians(180)),
    Part.LineSegment(App.Vector(20, 17, 0), App.Vector(20, 11, 0)),
    Part.LineSegment(App.Vector(20, 11, 0), App.Vector(6, 11, 0)),
], False)
sketch14.addConstraint([
    Sketcher.Constraint("Tangent", 0, 2, 1, 2),
    Sketcher.Constraint("Tangent", 1, 1, 2, 1),
    Sketcher.Constraint("Coincident", 2, 2, 3, 1),
    Sketcher.Constraint("Coincident", 3, 2, 0, 1),
    Sketcher.Constraint("Vertical", 0),
    Sketcher.Constraint("Vertical", 2),
    Sketcher.Constraint("Horizontal", 3),
    Sketcher.Constraint("Radius", 1, Q("7 mm")),
    Sketcher.Constraint("DistanceY", -1, 1, 2, 2, Q("11 mm")),
    Sketcher.Constraint("DistanceY", 0, 1, 0, 2, Q("5.915 mm")),
    Sketcher.Constraint("DistanceX", -1, 1, 1, 3, Q("13.25 mm")),
])
pocket13 = body.newObject("PartDesign::Pocket", "Pocket012")
pocket13.Profile = sketch14
pocket13.Type = "UpToFirst"
pocket13.Reversed = True

# Sketch on XZ plane
sketch15 = body.newObject("Sketcher::SketchObject", "Sketch014")
sketch15.AttachmentSupport = (doc.getObject("XZ_Plane"), [""])
sketch15.MapMode = "FlatFace"
sketch15.AttachmentOffset = App.Placement(App.Vector(0, 0, -3.175), App.Rotation())
sketch15.addGeometry([
    Part.LineSegment(App.Vector(41, 11, 0), App.Vector(41, 17, 0)),
    Part.ArcOfCircle(Part.Circle(App.Vector(48, 17, 0), App.Vector(0, 0, 1), 7), math.radians(0), math.radians(180)),
    Part.LineSegment(App.Vector(55, 17, 0), App.Vector(55, 11, 0)),
    Part.LineSegment(App.Vector(55, 11, 0), App.Vector(41, 11, 0)),
], False)
sketch15.addConstraint([
    Sketcher.Constraint("Tangent", 0, 2, 1, 2),
    Sketcher.Constraint("Tangent", 1, 1, 2, 1),
    Sketcher.Constraint("Coincident", 2, 2, 3, 1),
    Sketcher.Constraint("Coincident", 3, 2, 0, 1),
    Sketcher.Constraint("Vertical", 0),
    Sketcher.Constraint("Vertical", 2),
    Sketcher.Constraint("Horizontal", 3),
    Sketcher.Constraint("Radius", 1, Q("7 mm")),
    Sketcher.Constraint("DistanceY", -1, 1, 2, 2, Q("11 mm")),
    Sketcher.Constraint("DistanceY", 0, 1, 0, 2, Q("5.915 mm")),
    Sketcher.Constraint("DistanceX", -1, 1, 1, 3, Q("48.25 mm")),
])
pocket14 = body.newObject("PartDesign::Pocket", "Pocket013")
pocket14.Profile = sketch15
pocket14.Type = "UpToFirst"
pocket14.Reversed = True

doc.recompute()
